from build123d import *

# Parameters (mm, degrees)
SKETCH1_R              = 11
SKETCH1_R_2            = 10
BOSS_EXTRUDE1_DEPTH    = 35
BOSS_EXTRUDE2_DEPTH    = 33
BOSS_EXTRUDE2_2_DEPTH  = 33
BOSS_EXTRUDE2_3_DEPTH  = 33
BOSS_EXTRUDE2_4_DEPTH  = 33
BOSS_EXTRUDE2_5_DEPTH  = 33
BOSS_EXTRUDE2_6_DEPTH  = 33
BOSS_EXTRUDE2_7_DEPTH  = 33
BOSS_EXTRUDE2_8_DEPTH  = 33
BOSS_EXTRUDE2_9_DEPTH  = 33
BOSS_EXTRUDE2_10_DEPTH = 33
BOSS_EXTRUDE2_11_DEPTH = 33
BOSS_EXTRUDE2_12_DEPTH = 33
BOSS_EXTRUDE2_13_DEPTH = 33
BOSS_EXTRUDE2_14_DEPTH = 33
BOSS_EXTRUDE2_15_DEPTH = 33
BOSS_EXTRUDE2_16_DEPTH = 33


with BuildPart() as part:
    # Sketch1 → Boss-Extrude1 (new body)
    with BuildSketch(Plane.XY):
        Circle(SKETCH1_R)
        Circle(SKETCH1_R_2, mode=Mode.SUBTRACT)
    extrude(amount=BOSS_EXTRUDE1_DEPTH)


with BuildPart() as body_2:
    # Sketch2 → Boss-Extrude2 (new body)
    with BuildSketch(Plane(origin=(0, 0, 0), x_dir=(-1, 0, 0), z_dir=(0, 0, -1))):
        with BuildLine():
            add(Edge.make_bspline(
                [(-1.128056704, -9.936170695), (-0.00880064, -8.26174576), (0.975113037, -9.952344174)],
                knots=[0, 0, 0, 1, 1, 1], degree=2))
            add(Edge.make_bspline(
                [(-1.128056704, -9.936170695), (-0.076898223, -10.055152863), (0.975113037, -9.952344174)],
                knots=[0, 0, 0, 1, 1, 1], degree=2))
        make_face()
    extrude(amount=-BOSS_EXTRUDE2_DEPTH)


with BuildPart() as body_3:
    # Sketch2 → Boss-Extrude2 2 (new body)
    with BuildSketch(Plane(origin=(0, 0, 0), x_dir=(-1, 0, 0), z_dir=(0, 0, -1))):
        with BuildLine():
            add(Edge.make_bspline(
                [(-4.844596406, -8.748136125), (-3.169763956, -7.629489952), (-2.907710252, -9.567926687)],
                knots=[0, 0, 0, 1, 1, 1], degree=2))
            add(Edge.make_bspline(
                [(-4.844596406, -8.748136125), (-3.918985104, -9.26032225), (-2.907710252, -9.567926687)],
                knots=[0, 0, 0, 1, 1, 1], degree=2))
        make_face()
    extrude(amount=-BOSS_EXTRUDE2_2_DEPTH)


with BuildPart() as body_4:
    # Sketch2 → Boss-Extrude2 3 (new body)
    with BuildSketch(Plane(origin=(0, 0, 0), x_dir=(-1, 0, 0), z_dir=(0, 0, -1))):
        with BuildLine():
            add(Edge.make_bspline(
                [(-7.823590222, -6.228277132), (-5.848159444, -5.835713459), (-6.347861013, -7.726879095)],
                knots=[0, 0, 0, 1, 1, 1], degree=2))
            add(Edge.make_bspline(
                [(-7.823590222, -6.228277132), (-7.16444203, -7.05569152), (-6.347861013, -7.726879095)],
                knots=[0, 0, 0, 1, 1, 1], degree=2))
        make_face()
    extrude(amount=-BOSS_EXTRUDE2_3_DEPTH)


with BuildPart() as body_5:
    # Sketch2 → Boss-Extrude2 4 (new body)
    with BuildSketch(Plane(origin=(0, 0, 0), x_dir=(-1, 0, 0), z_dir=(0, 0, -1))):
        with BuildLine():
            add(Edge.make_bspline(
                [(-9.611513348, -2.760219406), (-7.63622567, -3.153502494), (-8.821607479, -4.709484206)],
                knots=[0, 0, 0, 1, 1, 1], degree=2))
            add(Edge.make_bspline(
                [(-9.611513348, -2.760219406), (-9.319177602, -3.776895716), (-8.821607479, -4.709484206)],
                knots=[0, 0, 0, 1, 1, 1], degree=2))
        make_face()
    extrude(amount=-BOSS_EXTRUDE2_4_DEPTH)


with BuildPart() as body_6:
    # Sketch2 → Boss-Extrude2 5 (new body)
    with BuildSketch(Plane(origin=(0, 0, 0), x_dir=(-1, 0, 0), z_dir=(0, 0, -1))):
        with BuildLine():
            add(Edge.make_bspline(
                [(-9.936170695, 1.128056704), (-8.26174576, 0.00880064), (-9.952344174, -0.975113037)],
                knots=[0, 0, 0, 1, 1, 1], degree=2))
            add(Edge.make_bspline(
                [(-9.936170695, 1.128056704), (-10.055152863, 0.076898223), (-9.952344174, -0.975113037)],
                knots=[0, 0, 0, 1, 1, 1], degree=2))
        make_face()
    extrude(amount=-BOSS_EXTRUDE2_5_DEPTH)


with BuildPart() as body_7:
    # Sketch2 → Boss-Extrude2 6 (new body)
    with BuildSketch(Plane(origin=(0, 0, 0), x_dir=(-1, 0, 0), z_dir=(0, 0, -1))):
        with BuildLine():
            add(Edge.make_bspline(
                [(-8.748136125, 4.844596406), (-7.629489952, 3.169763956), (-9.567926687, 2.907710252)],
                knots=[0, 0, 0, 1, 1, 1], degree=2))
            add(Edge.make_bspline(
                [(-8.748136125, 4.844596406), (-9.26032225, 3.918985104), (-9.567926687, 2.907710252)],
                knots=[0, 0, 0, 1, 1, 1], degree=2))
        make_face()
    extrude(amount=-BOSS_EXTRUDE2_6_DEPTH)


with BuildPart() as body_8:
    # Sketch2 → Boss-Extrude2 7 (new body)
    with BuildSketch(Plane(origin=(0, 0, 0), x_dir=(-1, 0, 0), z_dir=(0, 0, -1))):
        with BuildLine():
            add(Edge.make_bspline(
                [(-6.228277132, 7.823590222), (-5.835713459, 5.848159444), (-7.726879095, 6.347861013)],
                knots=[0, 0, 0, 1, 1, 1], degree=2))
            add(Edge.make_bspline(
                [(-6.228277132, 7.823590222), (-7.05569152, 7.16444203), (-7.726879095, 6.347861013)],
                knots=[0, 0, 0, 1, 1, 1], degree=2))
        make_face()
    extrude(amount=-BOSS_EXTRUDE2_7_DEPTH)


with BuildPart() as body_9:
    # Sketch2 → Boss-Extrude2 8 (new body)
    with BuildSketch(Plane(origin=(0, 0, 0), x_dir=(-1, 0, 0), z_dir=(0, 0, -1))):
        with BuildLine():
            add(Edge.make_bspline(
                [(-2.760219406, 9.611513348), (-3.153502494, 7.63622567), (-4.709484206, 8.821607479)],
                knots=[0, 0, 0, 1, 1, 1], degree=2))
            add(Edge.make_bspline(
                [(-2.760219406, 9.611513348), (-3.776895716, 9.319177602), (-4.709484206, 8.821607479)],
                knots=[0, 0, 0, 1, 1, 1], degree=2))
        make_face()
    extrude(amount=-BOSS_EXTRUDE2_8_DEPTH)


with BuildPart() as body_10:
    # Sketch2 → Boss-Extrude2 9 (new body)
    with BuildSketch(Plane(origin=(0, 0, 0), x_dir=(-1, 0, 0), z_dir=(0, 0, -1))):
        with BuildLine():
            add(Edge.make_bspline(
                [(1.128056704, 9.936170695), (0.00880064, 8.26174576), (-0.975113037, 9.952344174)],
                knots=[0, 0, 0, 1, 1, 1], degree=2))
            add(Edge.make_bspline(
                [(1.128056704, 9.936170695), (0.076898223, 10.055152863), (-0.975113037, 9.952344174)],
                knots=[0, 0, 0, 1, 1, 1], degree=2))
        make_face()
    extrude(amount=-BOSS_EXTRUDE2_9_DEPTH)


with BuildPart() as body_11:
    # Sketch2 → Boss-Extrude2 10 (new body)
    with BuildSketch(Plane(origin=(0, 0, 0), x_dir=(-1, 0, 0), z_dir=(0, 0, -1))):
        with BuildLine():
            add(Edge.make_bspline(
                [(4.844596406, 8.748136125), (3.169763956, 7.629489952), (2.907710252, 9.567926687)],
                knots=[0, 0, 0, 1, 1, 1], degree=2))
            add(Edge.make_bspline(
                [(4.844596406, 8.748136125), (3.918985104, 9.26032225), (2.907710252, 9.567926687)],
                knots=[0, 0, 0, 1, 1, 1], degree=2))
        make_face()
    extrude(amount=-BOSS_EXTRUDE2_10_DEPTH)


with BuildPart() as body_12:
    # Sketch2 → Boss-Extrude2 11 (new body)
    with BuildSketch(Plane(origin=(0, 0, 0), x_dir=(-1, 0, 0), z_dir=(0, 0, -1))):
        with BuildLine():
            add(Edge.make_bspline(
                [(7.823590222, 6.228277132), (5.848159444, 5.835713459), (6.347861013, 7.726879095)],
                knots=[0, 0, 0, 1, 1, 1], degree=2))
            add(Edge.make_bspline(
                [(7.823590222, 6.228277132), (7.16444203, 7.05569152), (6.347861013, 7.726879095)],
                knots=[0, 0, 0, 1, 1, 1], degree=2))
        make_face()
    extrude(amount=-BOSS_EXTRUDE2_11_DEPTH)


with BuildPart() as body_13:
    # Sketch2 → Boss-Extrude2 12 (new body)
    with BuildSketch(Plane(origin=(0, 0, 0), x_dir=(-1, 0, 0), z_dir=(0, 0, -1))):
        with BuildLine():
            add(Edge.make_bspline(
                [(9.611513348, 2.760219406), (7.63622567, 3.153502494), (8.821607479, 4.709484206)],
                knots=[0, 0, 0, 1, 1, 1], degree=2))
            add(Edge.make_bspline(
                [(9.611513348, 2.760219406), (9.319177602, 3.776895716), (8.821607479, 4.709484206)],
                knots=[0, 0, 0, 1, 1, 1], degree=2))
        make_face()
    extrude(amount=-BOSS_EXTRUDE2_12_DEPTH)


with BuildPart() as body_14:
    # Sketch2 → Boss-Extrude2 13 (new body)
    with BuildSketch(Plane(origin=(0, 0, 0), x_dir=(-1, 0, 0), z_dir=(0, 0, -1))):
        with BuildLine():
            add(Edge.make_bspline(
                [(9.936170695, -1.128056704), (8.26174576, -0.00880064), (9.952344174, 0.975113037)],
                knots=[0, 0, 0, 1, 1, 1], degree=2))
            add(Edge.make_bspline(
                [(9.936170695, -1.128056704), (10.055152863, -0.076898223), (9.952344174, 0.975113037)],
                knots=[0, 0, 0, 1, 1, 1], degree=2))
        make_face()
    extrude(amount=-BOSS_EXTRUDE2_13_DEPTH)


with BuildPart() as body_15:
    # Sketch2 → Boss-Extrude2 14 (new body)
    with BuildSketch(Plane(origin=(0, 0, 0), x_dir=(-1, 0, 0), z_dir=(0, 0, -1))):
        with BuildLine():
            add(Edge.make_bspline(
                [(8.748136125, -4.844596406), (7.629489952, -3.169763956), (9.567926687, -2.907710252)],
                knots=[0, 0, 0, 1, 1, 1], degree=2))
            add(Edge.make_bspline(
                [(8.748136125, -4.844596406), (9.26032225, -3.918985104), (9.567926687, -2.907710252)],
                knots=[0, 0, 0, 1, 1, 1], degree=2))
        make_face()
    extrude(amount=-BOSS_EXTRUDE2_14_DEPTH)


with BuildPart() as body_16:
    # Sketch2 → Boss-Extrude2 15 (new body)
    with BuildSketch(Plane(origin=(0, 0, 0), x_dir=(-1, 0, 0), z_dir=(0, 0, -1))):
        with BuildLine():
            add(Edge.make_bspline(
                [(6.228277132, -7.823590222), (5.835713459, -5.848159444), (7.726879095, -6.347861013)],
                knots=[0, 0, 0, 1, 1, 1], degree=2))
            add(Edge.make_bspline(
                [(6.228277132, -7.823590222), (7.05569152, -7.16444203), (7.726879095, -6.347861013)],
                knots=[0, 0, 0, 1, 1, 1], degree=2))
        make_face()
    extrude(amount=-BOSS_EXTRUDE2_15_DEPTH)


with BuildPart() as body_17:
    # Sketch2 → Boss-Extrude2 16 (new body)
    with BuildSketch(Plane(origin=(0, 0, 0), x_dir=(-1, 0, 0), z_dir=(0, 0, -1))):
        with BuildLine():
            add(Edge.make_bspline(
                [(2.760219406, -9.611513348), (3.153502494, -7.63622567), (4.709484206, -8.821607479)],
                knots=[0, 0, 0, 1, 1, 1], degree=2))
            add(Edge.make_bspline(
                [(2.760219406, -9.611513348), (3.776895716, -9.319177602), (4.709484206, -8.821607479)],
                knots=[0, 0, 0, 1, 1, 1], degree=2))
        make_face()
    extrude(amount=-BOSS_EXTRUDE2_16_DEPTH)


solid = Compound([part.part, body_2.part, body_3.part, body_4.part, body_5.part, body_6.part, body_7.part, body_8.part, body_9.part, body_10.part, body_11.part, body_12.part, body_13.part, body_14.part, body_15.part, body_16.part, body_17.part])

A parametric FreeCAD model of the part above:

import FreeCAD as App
import Part
import Sketcher

V = App.Vector

doc = App.newDocument("Part")
params = doc.addObject("Spreadsheet::Sheet", "Params")
for row, (alias, value) in enumerate([
    ("sketch1_diameter", "22 mm"),
    ("sketch1_diameter2", "20 mm"),
    ("pad1_length", "35 mm"),
    ("pad2_length", "33 mm"),
    ("pad3_length", "33 mm"),
    ("pad4_length", "33 mm"),
    ("pad5_length", "33 mm"),
    ("pad6_length", "33 mm"),
    ("pad7_length", "33 mm"),
    ("pad8_length", "33 mm"),
    ("pad9_length", "33 mm"),
    ("pad10_length", "33 mm"),
    ("pad11_length", "33 mm"),
    ("pad12_length", "33 mm"),
    ("pad13_length", "33 mm"),
    ("pad14_length", "33 mm"),
    ("pad15_length", "33 mm"),
    ("pad16_length", "33 mm"),
    ("pad17_length", "33 mm"),
], start=1):
    params.set(f"A{row}", alias)
    params.set(f"B{row}", "=" + value)
    params.setAlias(f"B{row}", alias)

body = doc.addObject("PartDesign::Body", "Body")

sketch1 = body.newObject("Sketcher::SketchObject", "Sketch")
sketch1.AttachmentSupport = (doc.getObject("XY_Plane"), [""])
sketch1.MapMode = "FlatFace"
sketch1.addGeometry(Part.Circle(V(0, 0, 0), V(0, 0, 1), 11), False)
sketch1.addGeometry(Part.Circle(V(0, 0, 0), V(0, 0, 1), 10), False)
sketch1.addConstraint(Sketcher.Constraint("Coincident", 0, 3, -1, 1))
sketch1.addConstraint(Sketcher.Constraint("Coincident", 1, 3, -1, 1))
sketch1.addConstraint(Sketcher.Constraint("Diameter", 0, 22.0))
sketch1.addConstraint(Sketcher.Constraint("Diameter", 1, 20.0))
sketch1.setExpression("Constraints[2]", "Params.sketch1_diameter")
sketch1.setExpression("Constraints[3]", "Params.sketch1_diameter2")
pad1 = body.newObject("PartDesign::Pad", "Pad")
pad1.Profile = sketch1
pad1.setExpression("Length", "Params.pad1_length")
body2 = doc.addObject("PartDesign::Body", "Body001")

sketch2 = body2.newObject("Sketcher::SketchObject", "Sketch001")
sketch2.AttachmentSupport = (doc.getObject("XY_Plane001"), [""])
sketch2.MapMode = "FlatFace"
sketch2.addGeometry(Part.BSplineCurve([V(1.128057, -9.936171, 0), V(0.008801, -8.261746, 0), V(-0.975113, -9.952344, 0)], [3, 3], [0, 1], False, 2, [1, 1, 1], False), False)
sketch2.addGeometry(Part.BSplineCurve([V(1.128057, -9.936171, 0), V(0.076898, -10.055153, 0), V(-0.975113, -9.952344, 0)], [3, 3], [0, 1], False, 2, [1, 1, 1], False), False)
sketch2.addConstraint(Sketcher.Constraint("Block", 0))
sketch2.addConstraint(Sketcher.Constraint("Block", 1))
pad2 = body2.newObject("PartDesign::Pad", "Pad001")
pad2.Profile = sketch2
pad2.setExpression("Length", "Params.pad2_length")
body3 = doc.addObject("PartDesign::Body", "Body002")

sketch3 = body3.newObject("Sketcher::SketchObject", "Sketch002")
sketch3.AttachmentSupport = (doc.getObject("XY_Plane002"), [""])
sketch3.MapMode = "FlatFace"
sketch3.addGeometry(Part.BSplineCurve([V(4.844596, -8.748136, 0), V(3.169764, -7.62949, 0), V(2.90771, -9.567927, 0)], [3, 3], [0, 1], False, 2, [1, 1, 1], False), False)
sketch3.addGeometry(Part.BSplineCurve([V(4.844596, -8.748136, 0), V(3.918985, -9.260322, 0), V(2.90771, -9.567927, 0)], [3, 3], [0, 1], False, 2, [1, 1, 1], False), False)
sketch3.addConstraint(Sketcher.Constraint("Block", 0))
sketch3.addConstraint(Sketcher.Constraint("Block", 1))
pad3 = body3.newObject("PartDesign::Pad", "Pad002")
pad3.Profile = sketch3
pad3.setExpression("Length", "Params.pad3_length")
body4 = doc.addObject("PartDesign::Body", "Body003")

sketch4 = body4.newObject("Sketcher::SketchObject", "Sketch003")
sketch4.AttachmentSupport = (doc.getObject("XY_Plane003"), [""])
sketch4.MapMode = "FlatFace"
sketch4.addGeometry(Part.BSplineCurve([V(7.82359, -6.228277, 0), V(5.848159, -5.835713, 0), V(6.347861, -7.726879, 0)], [3, 3], [0, 1], False, 2, [1, 1, 1], False), False)
sketch4.addGeometry(Part.BSplineCurve([V(7.82359, -6.228277, 0), V(7.164442, -7.055692, 0), V(6.347861, -7.726879, 0)], [3, 3], [0, 1], False, 2, [1, 1, 1], False), False)
sketch4.addConstraint(Sketcher.Constraint("Block", 0))
sketch4.addConstraint(Sketcher.Constraint("Block", 1))
pad4 = body4.newObject("PartDesign::Pad", "Pad003")
pad4.Profile = sketch4
pad4.setExpression("Length", "Params.pad4_length")
body5 = doc.addObject("PartDesign::Body", "Body004")

sketch5 = body5.newObject("Sketcher::SketchObject", "Sketch004")
sketch5.AttachmentSupport = (doc.getObject("XY_Plane004"), [""])
sketch5.MapMode = "FlatFace"
sketch5.addGeometry(Part.BSplineCurve([V(9.611513, -2.760219, 0), V(7.636226, -3.153502, 0), V(8.821607, -4.709484, 0)], [3, 3], [0, 1], False, 2, [1, 1, 1], False), False)
sketch5.addGeometry(Part.BSplineCurve([V(9.611513, -2.760219, 0), V(9.319178, -3.776896, 0), V(8.821607, -4.709484, 0)], [3, 3], [0, 1], False, 2, [1, 1, 1], False), False)
sketch5.addConstraint(Sketcher.Constraint("Block", 0))
sketch5.addConstraint(Sketcher.Constraint("Block", 1))
pad5 = body5.newObject("PartDesign::Pad", "Pad004")
pad5.Profile = sketch5
pad5.setExpression("Length", "Params.pad5_length")
body6 = doc.addObject("PartDesign::Body", "Body005")

sketch6 = body6.newObject("Sketcher::SketchObject", "Sketch005")
sketch6.AttachmentSupport = (doc.getObject("XY_Plane005"), [""])
sketch6.MapMode = "FlatFace"
sketch6.addGeometry(Part.BSplineCurve([V(9.936171, 1.128057, 0), V(8.261746, 0.008801, 0), V(9.952344, -0.975113, 0)], [3, 3], [0, 1], False, 2, [1, 1, 1], False), False)
sketch6.addGeometry(Part.BSplineCurve([V(9.936171, 1.128057, 0), V(10.055153, 0.076898, 0), V(9.952344, -0.975113, 0)], [3, 3], [0, 1], False, 2, [1, 1, 1], False), False)
sketch6.addConstraint(Sketcher.Constraint("Block", 0))
sketch6.addConstraint(Sketcher.Constraint("Block", 1))
pad6 = body6.newObject("PartDesign::Pad", "Pad005")
pad6.Profile = sketch6
pad6.setExpression("Length", "Params.pad6_length")
body7 = doc.addObject("PartDesign::Body", "Body006")

sketch7 = body7.newObject("Sketcher::SketchObject", "Sketch006")
sketch7.AttachmentSupport = (doc.getObject("XY_Plane006"), [""])
sketch7.MapMode = "FlatFace"
sketch7.addGeometry(Part.BSplineCurve([V(8.748136, 4.844596, 0), V(7.62949, 3.169764, 0), V(9.567927, 2.90771, 0)], [3, 3], [0, 1], False, 2, [1, 1, 1], False), False)
sketch7.addGeometry(Part.BSplineCurve([V(8.748136, 4.844596, 0), V(9.260322, 3.918985, 0), V(9.567927, 2.90771, 0)], [3, 3], [0, 1], False, 2, [1, 1, 1], False), False)
sketch7.addConstraint(Sketcher.Constraint("Block", 0))
sketch7.addConstraint(Sketcher.Constraint("Block", 1))
pad7 = body7.newObject("PartDesign::Pad", "Pad006")
pad7.Profile = sketch7
pad7.setExpression("Length", "Params.pad7_length")
body8 = doc.addObject("PartDesign::Body", "Body007")

sketch8 = body8.newObject("Sketcher::SketchObject", "Sketch007")
sketch8.AttachmentSupport = (doc.getObject("XY_Plane007"), [""])
sketch8.MapMode = "FlatFace"
sketch8.addGeometry(Part.BSplineCurve([V(6.228277, 7.82359, 0), V(5.835713, 5.848159, 0), V(7.726879, 6.347861, 0)], [3, 3], [0, 1], False, 2, [1, 1, 1], False), False)
sketch8.addGeometry(Part.BSplineCurve([V(6.228277, 7.82359, 0), V(7.055692, 7.164442, 0), V(7.726879, 6.347861, 0)], [3, 3], [0, 1], False, 2, [1, 1, 1], False), False)
sketch8.addConstraint(Sketcher.Constraint("Block", 0))
sketch8.addConstraint(Sketcher.Constraint("Block", 1))
pad8 = body8.newObject("PartDesign::Pad", "Pad007")
pad8.Profile = sketch8
pad8.setExpression("Length", "Params.pad8_length")
body9 = doc.addObject("PartDesign::Body", "Body008")

sketch9 = body9.newObject("Sketcher::SketchObject", "Sketch008")
sketch9.AttachmentSupport = (doc.getObject("XY_Plane008"), [""])
sketch9.MapMode = "FlatFace"
sketch9.addGeometry(Part.BSplineCurve([V(2.760219, 9.611513, 0), V(3.153502, 7.636226, 0), V(4.709484, 8.821607, 0)], [3, 3], [0, 1], False, 2, [1, 1, 1], False), False)
sketch9.addGeometry(Part.BSplineCurve([V(2.760219, 9.611513, 0), V(3.776896, 9.319178, 0), V(4.709484, 8.821607, 0)], [3, 3], [0, 1], False, 2, [1, 1, 1], False), False)
sketch9.addConstraint(Sketcher.Constraint("Block", 0))
sketch9.addConstraint(Sketcher.Constraint("Block", 1))
pad9 = body9.newObject("PartDesign::Pad", "Pad008")
pad9.Profile = sketch9
pad9.setExpression("Length", "Params.pad9_length")
body10 = doc.addObject("PartDesign::Body", "Body009")

sketch10 = body10.newObject("Sketcher::SketchObject", "Sketch009")
sketch10.AttachmentSupport = (doc.getObject("XY_Plane009"), [""])
sketch10.MapMode = "FlatFace"
sketch10.addGeometry(Part.BSplineCurve([V(-1.128057, 9.936171, 0), V(-0.008801, 8.261746, 0), V(0.975113, 9.952344, 0)], [3, 3], [0, 1], False, 2, [1, 1, 1], False), False)
sketch10.addGeometry(Part.BSplineCurve([V(-1.128057, 9.936171, 0), V(-0.076898, 10.055153, 0), V(0.975113, 9.952344, 0)], [3, 3], [0, 1], False, 2, [1, 1, 1], False), False)
sketch10.addConstraint(Sketcher.Constraint("Block", 0))
sketch10.addConstraint(Sketcher.Constraint("Block", 1))
pad10 = body10.newObject("PartDesign::Pad", "Pad009")
pad10.Profile = sketch10
pad10.setExpression("Length", "Params.pad10_length")
body11 = doc.addObject("PartDesign::Body", "Body010")

sketch11 = body11.newObject("Sketcher::SketchObject", "Sketch010")
sketch11.AttachmentSupport = (doc.getObject("XY_Plane010"), [""])
sketch11.MapMode = "FlatFace"
sketch11.addGeometry(Part.BSplineCurve([V(-4.844596, 8.748136, 0), V(-3.169764, 7.62949, 0), V(-2.90771, 9.567927, 0)], [3, 3], [0, 1], False, 2, [1, 1, 1], False), False)
sketch11.addGeometry(Part.BSplineCurve([V(-4.844596, 8.748136, 0), V(-3.918985, 9.260322, 0), V(-2.90771, 9.567927, 0)], [3, 3], [0, 1], False, 2, [1, 1, 1], False), False)
sketch11.addConstraint(Sketcher.Constraint("Block", 0))
sketch11.addConstraint(Sketcher.Constraint("Block", 1))
pad11 = body11.newObject("PartDesign::Pad", "Pad010")
pad11.Profile = sketch11
pad11.setExpression("Length", "Params.pad11_length")
body12 = doc.addObject("PartDesign::Body", "Body011")

sketch12 = body12.newObject("Sketcher::SketchObject", "Sketch011")
sketch12.AttachmentSupport = (doc.getObject("XY_Plane011"), [""])
sketch12.MapMode = "FlatFace"
sketch12.addGeometry(Part.BSplineCurve([V(-7.82359, 6.228277, 0), V(-5.848159, 5.835713, 0), V(-6.347861, 7.726879, 0)], [3, 3], [0, 1], False, 2, [1, 1, 1], False), False)
sketch12.addGeometry(Part.BSplineCurve([V(-7.82359, 6.228277, 0), V(-7.164442, 7.055692, 0), V(-6.347861, 7.726879, 0)], [3, 3], [0, 1], False, 2, [1, 1, 1], False), False)
sketch12.addConstraint(Sketcher.Constraint("Block", 0))
sketch12.addConstraint(Sketcher.Constraint("Block", 1))
pad12 = body12.newObject("PartDesign::Pad", "Pad011")
pad12.Profile = sketch12
pad12.setExpression("Length", "Params.pad12_length")
body13 = doc.addObject("PartDesign::Body", "Body012")

sketch13 = body13.newObject("Sketcher::SketchObject", "Sketch012")
sketch13.AttachmentSupport = (doc.getObject("XY_Plane012"), [""])
sketch13.MapMode = "FlatFace"
sketch13.addGeometry(Part.BSplineCurve([V(-9.611513, 2.760219, 0), V(-7.636226, 3.153502, 0), V(-8.821607, 4.709484, 0)], [3, 3], [0, 1], False, 2, [1, 1, 1], False), False)
sketch13.addGeometry(Part.BSplineCurve([V(-9.611513, 2.760219, 0), V(-9.319178, 3.776896, 0), V(-8.821607, 4.709484, 0)], [3, 3], [0, 1], False, 2, [1, 1, 1], False), False)
sketch13.addConstraint(Sketcher.Constraint("Block", 0))
sketch13.addConstraint(Sketcher.Constraint("Block", 1))
pad13 = body13.newObject("PartDesign::Pad", "Pad012")
pad13.Profile = sketch13
pad13.setExpression("Length", "Params.pad13_length")
body14 = doc.addObject("PartDesign::Body", "Body013")

sketch14 = body14.newObject("Sketcher::SketchObject", "Sketch013")
sketch14.AttachmentSupport = (doc.getObject("XY_Plane013"), [""])
sketch14.MapMode = "FlatFace"
sketch14.addGeometry(Part.BSplineCurve([V(-9.936171, -1.128057, 0), V(-8.261746, -0.008801, 0), V(-9.952344, 0.975113, 0)], [3, 3], [0, 1], False, 2, [1, 1, 1], False), False)
sketch14.addGeometry(Part.BSplineCurve([V(-9.936171, -1.128057, 0), V(-10.055153, -0.076898, 0), V(-9.952344, 0.975113, 0)], [3, 3], [0, 1], False, 2, [1, 1, 1], False), False)
sketch14.addConstraint(Sketcher.Constraint("Block", 0))
sketch14.addConstraint(Sketcher.Constraint("Block", 1))
pad14 = body14.newObject("PartDesign::Pad", "Pad013")
pad14.Profile = sketch14
pad14.setExpression("Length", "Params.pad14_length")
body15 = doc.addObject("PartDesign::Body", "Body014")

sketch15 = body15.newObject("Sketcher::SketchObject", "Sketch014")
sketch15.AttachmentSupport = (doc.getObject("XY_Plane014"), [""])
sketch15.MapMode = "FlatFace"
sketch15.addGeometry(Part.BSplineCurve([V(-8.748136, -4.844596, 0), V(-7.62949, -3.169764, 0), V(-9.567927, -2.90771, 0)], [3, 3], [0, 1], False, 2, [1, 1, 1], False), False)
sketch15.addGeometry(Part.BSplineCurve([V(-8.748136, -4.844596, 0), V(-9.260322, -3.918985, 0), V(-9.567927, -2.90771, 0)], [3, 3], [0, 1], False, 2, [1, 1, 1], False), False)
sketch15.addConstraint(Sketcher.Constraint("Block", 0))
sketch15.addConstraint(Sketcher.Constraint("Block", 1))
pad15 = body15.newObject("PartDesign::Pad", "Pad014")
pad15.Profile = sketch15
pad15.setExpression("Length", "Params.pad15_length")
body16 = doc.addObject("PartDesign::Body", "Body015")

sketch16 = body16.newObject("Sketcher::SketchObject", "Sketch015")
sketch16.AttachmentSupport = (doc.getObject("XY_Plane015"), [""])
sketch16.MapMode = "FlatFace"
sketch16.addGeometry(Part.BSplineCurve([V(-6.228277, -7.82359, 0), V(-5.835713, -5.848159, 0), V(-7.726879, -6.347861, 0)], [3, 3], [0, 1], False, 2, [1, 1, 1], False), False)
sketch16.addGeometry(Part.BSplineCurve([V(-6.228277, -7.82359, 0), V(-7.055692, -7.164442, 0), V(-7.726879, -6.347861, 0)], [3, 3], [0, 1], False, 2, [1, 1, 1], False), False)
sketch16.addConstraint(Sketcher.Constraint("Block", 0))
sketch16.addConstraint(Sketcher.Constraint("Block", 1))
pad16 = body16.newObject("PartDesign::Pad", "Pad015")
pad16.Profile = sketch16
pad16.setExpression("Length", "Params.pad16_length")
body17 = doc.addObject("PartDesign::Body", "Body016")

sketch17 = body17.newObject("Sketcher::SketchObject", "Sketch016")
sketch17.AttachmentSupport = (doc.getObject("XY_Plane016"), [""])
sketch17.MapMode = "FlatFace"
sketch17.addGeometry(Part.BSplineCurve([V(-2.760219, -9.611513, 0), V(-3.153502, -7.636226, 0), V(-4.709484, -8.821607, 0)], [3, 3], [0, 1], False, 2, [1, 1, 1], False), False)
sketch17.addGeometry(Part.BSplineCurve([V(-2.760219, -9.611513, 0), V(-3.776896, -9.319178, 0), V(-4.709484, -8.821607, 0)], [3, 3], [0, 1], False, 2, [1, 1, 1], False), False)
sketch17.addConstraint(Sketcher.Constraint("Block", 0))
sketch17.addConstraint(Sketcher.Constraint("Block", 1))
pad17 = body17.newObject("PartDesign::Pad", "Pad016")
pad17.Profile = sketch17
pad17.setExpression("Length", "Params.pad17_length")

doc.recompute()
